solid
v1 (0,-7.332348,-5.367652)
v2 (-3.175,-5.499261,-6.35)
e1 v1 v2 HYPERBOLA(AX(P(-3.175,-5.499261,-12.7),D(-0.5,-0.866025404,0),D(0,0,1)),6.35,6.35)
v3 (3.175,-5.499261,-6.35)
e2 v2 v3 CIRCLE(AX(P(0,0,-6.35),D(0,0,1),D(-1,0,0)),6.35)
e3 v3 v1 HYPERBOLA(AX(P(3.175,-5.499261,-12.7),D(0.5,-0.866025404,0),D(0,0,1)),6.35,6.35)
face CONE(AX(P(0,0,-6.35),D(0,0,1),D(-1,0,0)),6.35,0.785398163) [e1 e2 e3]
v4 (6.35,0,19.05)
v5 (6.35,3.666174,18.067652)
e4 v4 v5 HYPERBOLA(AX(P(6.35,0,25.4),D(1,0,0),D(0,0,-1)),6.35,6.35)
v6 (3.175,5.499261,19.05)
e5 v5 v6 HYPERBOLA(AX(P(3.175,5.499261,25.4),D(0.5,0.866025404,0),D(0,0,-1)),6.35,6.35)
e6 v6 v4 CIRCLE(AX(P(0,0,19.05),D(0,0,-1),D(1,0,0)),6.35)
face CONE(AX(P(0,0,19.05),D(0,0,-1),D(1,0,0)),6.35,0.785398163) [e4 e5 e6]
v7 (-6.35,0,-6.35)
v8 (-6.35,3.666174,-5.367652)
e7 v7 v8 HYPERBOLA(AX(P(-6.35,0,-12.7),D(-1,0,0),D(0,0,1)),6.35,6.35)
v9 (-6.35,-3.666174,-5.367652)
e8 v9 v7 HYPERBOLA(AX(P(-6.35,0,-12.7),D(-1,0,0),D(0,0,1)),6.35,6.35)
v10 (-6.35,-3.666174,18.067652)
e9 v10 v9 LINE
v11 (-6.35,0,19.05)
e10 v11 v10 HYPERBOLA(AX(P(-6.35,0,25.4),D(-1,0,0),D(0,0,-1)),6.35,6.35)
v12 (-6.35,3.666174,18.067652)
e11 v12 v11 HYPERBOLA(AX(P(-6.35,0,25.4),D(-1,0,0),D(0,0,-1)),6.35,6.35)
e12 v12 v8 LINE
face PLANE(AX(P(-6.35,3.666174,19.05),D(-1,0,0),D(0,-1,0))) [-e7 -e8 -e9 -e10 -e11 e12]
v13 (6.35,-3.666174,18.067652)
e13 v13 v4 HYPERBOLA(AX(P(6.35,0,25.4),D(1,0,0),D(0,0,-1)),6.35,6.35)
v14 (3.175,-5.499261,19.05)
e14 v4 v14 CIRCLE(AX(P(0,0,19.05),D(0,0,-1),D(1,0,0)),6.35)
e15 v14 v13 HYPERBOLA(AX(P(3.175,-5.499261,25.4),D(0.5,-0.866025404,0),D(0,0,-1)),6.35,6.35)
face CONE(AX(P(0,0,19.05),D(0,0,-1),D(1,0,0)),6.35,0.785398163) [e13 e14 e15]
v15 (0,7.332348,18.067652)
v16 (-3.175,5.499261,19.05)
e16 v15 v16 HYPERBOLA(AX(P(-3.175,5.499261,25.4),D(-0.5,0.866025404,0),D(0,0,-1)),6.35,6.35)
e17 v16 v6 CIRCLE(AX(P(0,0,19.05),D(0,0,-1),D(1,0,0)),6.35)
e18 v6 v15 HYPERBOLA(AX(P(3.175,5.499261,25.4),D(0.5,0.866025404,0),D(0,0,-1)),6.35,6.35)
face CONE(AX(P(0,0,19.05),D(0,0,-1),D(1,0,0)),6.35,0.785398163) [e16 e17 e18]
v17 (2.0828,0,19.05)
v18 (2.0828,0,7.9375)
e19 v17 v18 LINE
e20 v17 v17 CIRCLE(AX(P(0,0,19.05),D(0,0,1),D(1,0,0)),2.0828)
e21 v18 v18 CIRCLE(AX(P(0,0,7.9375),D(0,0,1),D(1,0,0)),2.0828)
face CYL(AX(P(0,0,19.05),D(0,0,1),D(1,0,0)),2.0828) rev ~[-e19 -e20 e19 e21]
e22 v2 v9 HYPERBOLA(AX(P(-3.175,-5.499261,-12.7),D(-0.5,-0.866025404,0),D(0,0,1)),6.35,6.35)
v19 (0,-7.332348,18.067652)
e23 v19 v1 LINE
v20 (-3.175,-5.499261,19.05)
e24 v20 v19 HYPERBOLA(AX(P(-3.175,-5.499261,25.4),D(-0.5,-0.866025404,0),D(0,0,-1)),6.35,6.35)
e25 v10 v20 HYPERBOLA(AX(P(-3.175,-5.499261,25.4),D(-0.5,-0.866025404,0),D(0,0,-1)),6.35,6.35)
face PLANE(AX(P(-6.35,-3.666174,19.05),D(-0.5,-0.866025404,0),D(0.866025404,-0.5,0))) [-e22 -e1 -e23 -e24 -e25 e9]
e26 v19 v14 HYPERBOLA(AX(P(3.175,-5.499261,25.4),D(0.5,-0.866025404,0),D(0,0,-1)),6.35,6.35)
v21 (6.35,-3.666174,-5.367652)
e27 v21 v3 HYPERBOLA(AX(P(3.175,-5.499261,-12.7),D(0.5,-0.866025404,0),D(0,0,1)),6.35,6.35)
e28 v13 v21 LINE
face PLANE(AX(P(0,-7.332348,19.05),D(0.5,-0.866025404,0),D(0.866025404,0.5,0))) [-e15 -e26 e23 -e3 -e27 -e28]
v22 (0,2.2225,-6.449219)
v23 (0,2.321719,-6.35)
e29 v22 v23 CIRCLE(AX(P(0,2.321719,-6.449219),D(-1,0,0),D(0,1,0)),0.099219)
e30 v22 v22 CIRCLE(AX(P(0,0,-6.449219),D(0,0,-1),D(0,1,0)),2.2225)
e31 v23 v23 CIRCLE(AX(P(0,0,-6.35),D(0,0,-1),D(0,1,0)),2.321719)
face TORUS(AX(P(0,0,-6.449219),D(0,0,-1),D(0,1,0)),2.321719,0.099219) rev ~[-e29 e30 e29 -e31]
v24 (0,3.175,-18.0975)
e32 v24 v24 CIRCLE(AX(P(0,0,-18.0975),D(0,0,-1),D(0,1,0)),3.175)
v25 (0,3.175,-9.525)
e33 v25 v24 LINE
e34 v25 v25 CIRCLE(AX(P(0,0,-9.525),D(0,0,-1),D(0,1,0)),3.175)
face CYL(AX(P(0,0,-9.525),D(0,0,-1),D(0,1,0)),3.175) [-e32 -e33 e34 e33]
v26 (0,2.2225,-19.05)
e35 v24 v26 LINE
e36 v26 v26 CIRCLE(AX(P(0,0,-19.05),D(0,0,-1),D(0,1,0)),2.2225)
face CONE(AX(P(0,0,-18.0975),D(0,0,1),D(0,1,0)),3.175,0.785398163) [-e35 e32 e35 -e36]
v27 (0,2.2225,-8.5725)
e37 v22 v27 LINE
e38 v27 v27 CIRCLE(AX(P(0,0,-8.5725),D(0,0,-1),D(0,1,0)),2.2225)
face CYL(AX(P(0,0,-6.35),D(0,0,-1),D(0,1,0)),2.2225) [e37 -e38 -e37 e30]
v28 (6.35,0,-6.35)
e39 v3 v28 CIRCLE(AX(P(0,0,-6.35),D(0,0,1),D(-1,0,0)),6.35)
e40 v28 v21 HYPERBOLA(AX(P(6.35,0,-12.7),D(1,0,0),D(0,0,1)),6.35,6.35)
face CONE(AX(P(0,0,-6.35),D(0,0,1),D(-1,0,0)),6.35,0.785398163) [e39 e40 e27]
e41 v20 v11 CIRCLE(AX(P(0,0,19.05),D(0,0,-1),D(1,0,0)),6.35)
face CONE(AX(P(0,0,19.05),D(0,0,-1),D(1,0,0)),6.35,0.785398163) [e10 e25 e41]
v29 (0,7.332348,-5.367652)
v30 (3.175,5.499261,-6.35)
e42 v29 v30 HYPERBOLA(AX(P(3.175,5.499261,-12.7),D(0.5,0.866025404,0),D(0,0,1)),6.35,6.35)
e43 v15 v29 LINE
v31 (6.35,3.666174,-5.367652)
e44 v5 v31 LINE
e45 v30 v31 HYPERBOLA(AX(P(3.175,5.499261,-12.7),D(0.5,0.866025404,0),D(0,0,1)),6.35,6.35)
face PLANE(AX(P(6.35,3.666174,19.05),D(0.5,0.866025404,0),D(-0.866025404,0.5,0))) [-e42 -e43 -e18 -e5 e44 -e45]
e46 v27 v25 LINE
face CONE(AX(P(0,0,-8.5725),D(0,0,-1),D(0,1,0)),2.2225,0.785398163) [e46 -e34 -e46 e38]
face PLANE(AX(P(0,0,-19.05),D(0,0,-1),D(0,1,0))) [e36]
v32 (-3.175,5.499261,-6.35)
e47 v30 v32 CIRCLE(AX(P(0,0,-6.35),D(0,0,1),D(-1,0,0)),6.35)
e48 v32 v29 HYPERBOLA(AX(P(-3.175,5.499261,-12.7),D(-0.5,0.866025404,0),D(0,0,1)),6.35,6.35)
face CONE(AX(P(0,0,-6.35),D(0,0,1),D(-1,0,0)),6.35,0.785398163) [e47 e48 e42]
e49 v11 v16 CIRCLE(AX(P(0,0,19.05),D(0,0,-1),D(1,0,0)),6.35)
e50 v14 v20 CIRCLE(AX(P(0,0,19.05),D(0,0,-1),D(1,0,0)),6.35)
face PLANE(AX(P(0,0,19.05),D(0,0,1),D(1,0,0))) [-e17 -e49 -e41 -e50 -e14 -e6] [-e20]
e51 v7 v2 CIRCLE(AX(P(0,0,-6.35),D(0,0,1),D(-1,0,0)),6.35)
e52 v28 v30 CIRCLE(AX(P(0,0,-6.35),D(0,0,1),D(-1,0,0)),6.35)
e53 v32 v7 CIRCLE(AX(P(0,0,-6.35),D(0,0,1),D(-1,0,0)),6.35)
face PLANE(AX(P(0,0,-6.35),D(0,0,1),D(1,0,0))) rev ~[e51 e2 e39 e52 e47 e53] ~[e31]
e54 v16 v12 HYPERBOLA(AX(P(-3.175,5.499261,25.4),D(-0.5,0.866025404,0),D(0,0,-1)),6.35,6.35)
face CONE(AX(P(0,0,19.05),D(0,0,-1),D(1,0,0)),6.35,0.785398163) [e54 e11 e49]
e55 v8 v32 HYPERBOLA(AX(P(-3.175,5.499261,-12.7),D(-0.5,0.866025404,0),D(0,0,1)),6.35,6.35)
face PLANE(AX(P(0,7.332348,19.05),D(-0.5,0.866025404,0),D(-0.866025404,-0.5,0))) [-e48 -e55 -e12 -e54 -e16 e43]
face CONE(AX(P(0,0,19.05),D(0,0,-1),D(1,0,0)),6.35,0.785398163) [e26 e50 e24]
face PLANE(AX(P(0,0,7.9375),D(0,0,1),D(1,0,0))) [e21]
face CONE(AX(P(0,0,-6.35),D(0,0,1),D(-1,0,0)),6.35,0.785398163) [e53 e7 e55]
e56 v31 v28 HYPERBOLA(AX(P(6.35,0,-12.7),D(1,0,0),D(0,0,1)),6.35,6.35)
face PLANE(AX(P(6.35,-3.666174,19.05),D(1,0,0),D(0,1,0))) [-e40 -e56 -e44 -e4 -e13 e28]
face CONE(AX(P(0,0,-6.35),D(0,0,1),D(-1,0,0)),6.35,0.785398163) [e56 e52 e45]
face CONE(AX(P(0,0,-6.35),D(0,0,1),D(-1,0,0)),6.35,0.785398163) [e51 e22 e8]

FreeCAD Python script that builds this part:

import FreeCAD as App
import Part
import Sketcher
from FreeCAD import Vector
Q = App.Units.Quantity


def edges_at(feature, points):
    """Names of the edges that pass closest to the given points."""
    edges = feature.Shape.Edges
    near = lambda p: min(range(len(edges)), key=lambda i: edges[i].distToShape(Part.Vertex(*p))[0])
    return sorted({f"Edge{near(p) + 1}" for p in points})

doc = App.newDocument("Part")
body = doc.addObject("PartDesign::Body", "Body")

# Sketch on XY plane
sketch1 = body.newObject("Sketcher::SketchObject", "Sketch")
sketch1.AttachmentSupport = (doc.getObject("XY_Plane"), [""])
sketch1.MapMode = "FlatFace"
sketch1.AttachmentOffset = App.Placement(Vector(0, 0, 0.75 * 25.4), App.Rotation())
sketch1.addGeometry(Part.LineSegment(Vector(6, 4, 0), Vector(0, 7, 0)), False)
sketch1.addGeometry(Part.LineSegment(Vector(0, 7, 0), Vector(-6, 4, 0)), False)
sketch1.addGeometry(Part.LineSegment(Vector(-6, 4, 0), Vector(-6, -4, 0)), False)
sketch1.addGeometry(Part.LineSegment(Vector(-6, -4, 0), Vector(0, -7, 0)), False)
sketch1.addGeometry(Part.LineSegment(Vector(0, -7, 0), Vector(6, -4, 0)), False)
sketch1.addGeometry(Part.LineSegment(Vector(6, -4, 0), Vector(6, 4, 0)), False)
sketch1.addConstraint(Sketcher.Constraint("Coincident", 0, 2, 1, 1))
sketch1.addConstraint(Sketcher.Constraint("Coincident", 1, 2, 2, 1))
sketch1.addConstraint(Sketcher.Constraint("Coincident", 2, 2, 3, 1))
sketch1.addConstraint(Sketcher.Constraint("Coincident", 3, 2, 4, 1))
sketch1.addConstraint(Sketcher.Constraint("Coincident", 4, 2, 5, 1))
sketch1.addConstraint(Sketcher.Constraint("Coincident", 5, 2, 0, 1))
sketch1.addConstraint(Sketcher.Constraint("Vertical", 2))
sketch1.addConstraint(Sketcher.Constraint("Vertical", 5))
sketch1.addConstraint(Sketcher.Constraint("Symmetric", 0, 2, 3, 2, -1, 1))
sketch1.addConstraint(Sketcher.Constraint("Symmetric", 1, 2, 4, 2, -1, 1))
sketch1.addConstraint(Sketcher.Constraint("PointOnObject", 0, 2, -2))
sketch1.addConstraint(Sketcher.Constraint("Parallel", 0, 3))
sketch1.addConstraint(Sketcher.Constraint("Horizontal", 2, 2, 4, 2))
sketch1.addConstraint(Sketcher.Constraint("Angle", 0, Q("150 deg")))
sketch1.addConstraint(Sketcher.Constraint("DistanceX", 2, 2, 4, 2, Q("0.5 in")))
sketch1.addConstraint(Sketcher.Constraint("DistanceY", 2, 2, 2, 1, 7.332348))
pad1 = body.newObject("PartDesign::Pad", "Pad")
pad1.Profile = sketch1
pad1.Length = Q("1 in")
pad1.Reversed = True

# Sketch on YZ plane
sketch2 = body.newObject("Sketcher::SketchObject", "Sketch001")
sketch2.AttachmentSupport = (doc.getObject("YZ_Plane"), [""])
sketch2.MapMode = "FlatFace"
sketch2.addGeometry(Part.LineSegment(Vector(2.2, -8.6, 0), Vector(2.2, -6.3, 0)), False)
sketch2.addGeometry(Part.LineSegment(Vector(2.2, -6.3, 0), Vector(0, -6.3, 0)), False)
sketch2.addGeometry(Part.LineSegment(Vector(0, -6.3, 0), Vector(0, -19.1, 0)), False)
sketch2.addGeometry(Part.LineSegment(Vector(0, -19.1, 0), Vector(3.2, -19.1, 0)), False)
sketch2.addGeometry(Part.LineSegment(Vector(3.2, -19.1, 0), Vector(3.2, -9.5, 0)), False)
sketch2.addGeometry(Part.LineSegment(Vector(3.2, -9.5, 0), Vector(2.2, -8.6, 0)), False)
sketch2.addConstraint(Sketcher.Constraint("Coincident", 0, 2, 1, 1))
sketch2.addConstraint(Sketcher.Constraint("Coincident", 1, 2, 2, 1))
sketch2.addConstraint(Sketcher.Constraint("Coincident", 2, 2, 3, 1))
sketch2.addConstraint(Sketcher.Constraint("Coincident", 3, 2, 4, 1))
sketch2.addConstraint(Sketcher.Constraint("Coincident", 4, 2, 5, 1))
sketch2.addConstraint(Sketcher.Constraint("Coincident", 5, 2, 0, 1))
sketch2.addConstraint(Sketcher.Constraint("Vertical", 0))
sketch2.addConstraint(Sketcher.Constraint("Horizontal", 1))
sketch2.addConstraint(Sketcher.Constraint("Vertical", 2))
sketch2.addConstraint(Sketcher.Constraint("Horizontal", 3))
sketch2.addConstraint(Sketcher.Constraint("Vertical", 4))
sketch2.addConstraint(Sketcher.Constraint("PointOnObject", 1, 2, -2))
sketch2.addConstraint(Sketcher.Constraint("Equal", 1, 0))
sketch2.addConstraint(Sketcher.Constraint("DistanceY", 2, 2, 2, 1, Q("0.5 in")))
sketch2.addConstraint(Sketcher.Constraint("Angle", 5, Q("135 deg")))
sketch2.addConstraint(Sketcher.Constraint("DistanceX", 3, 1, 3, 2, Q("0.125 in")))
sketch2.addConstraint(Sketcher.Constraint("DistanceY", 0, 2, -1, 1, Q("0.25 in")))
sketch2.addConstraint(Sketcher.Constraint("DistanceX", 1, 2, 1, 1, Q("0.0875 in")))
revolution = body.newObject("PartDesign::Revolution", "Revolution")
revolution.Profile = sketch2
revolution.ReferenceAxis = (sketch2, ["V_Axis"])
revolution.Angle = 360
doc.recompute()

chamfer = body.newObject("PartDesign::Chamfer", "Chamfer")
chamfer.Base = (revolution, edges_at(revolution, [(0, -3.175, -19.05)]))
chamfer.Size = Q("0.0375 in")

# Sketch on XY plane
sketch3 = body.newObject("Sketcher::SketchObject", "Sketch002")
sketch3.AttachmentSupport = (doc.getObject("XY_Plane"), [""])
sketch3.MapMode = "FlatFace"
sketch3.AttachmentOffset = App.Placement(Vector(0, 0, 0.75 * 25.4), App.Rotation())
sketch3.addGeometry(Part.Circle(Vector(0, 0, 0), Vector(0, 0, 1), 2.1), False)
sketch3.addConstraint(Sketcher.Constraint("Coincident", 0, 3, -1, 1))
sketch3.addConstraint(Sketcher.Constraint("Diameter", 0, Q("0.164 in")))
pocket1 = body.newObject("PartDesign::Pocket", "Pocket")
pocket1.Profile = sketch3
pocket1.Length = Q("0.4375 in")
doc.recompute()

fillet = body.newObject("PartDesign::Fillet", "Fillet")
fillet.Base = (pocket1, edges_at(pocket1, [(0, -2.223, -6.35)]))
fillet.Radius = 0.099219

# Sketch on XY plane
sketch4 = body.newObject("Sketcher::SketchObject", "Sketch003")
sketch4.AttachmentSupport = (doc.getObject("XY_Plane"), [""])
sketch4.MapMode = "FlatFace"
sketch4.AttachmentOffset = App.Placement(Vector(0, 0, 0.75 * 25.4), App.Rotation())
sketch4.addGeometry(Part.LineSegment(Vector(-51, 52, 0), Vector(-51, -52, 0)), False)
sketch4.addGeometry(Part.LineSegment(Vector(-51, -52, 0), Vector(51, -52, 0)), False)
sketch4.addGeometry(Part.LineSegment(Vector(51, -52, 0), Vector(51, 52, 0)), False)
sketch4.addGeometry(Part.LineSegment(Vector(51, 52, 0), Vector(-51, 52, 0)), False)
sketch4.addGeometry(Part.Circle(Vector(0, 0, 0), Vector(0, 0, 1), 6), False)
sketch4.addConstraint(Sketcher.Constraint("Coincident", 0, 2, 1, 1))
sketch4.addConstraint(Sketcher.Constraint("Coincident", 1, 2, 2, 1))
sketch4.addConstraint(Sketcher.Constraint("Coincident", 2, 2, 3, 1))
sketch4.addConstraint(Sketcher.Constraint("Coincident", 3, 2, 0, 1))
sketch4.addConstraint(Sketcher.Constraint("Vertical", 0))
sketch4.addConstraint(Sketcher.Constraint("Horizontal", 1))
sketch4.addConstraint(Sketcher.Constraint("Vertical", 2))
sketch4.addConstraint(Sketcher.Constraint("Horizontal", 3))
sketch4.addConstraint(Sketcher.Constraint("Coincident", 4, 3, -1, 1))
sketch4.addConstraint(Sketcher.Constraint("Symmetric", 0, 2, 2, 2, -1, 1))
sketch4.addConstraint(Sketcher.Constraint("Diameter", 4, Q("0.5 in")))
sketch4.addConstraint(Sketcher.Constraint("DistanceX", 1, 1, 1, 2, 101.45))
sketch4.addConstraint(Sketcher.Constraint("DistanceY", 0, 2, 0, 1, 103.414))
pocket2 = body.newObject("PartDesign::Pocket", "Pocket001")
pocket2.Profile = sketch4
pocket2.Length = 39.1
pocket2.TaperAngle = 45

# Sketch on XY plane
sketch5 = body.newObject("Sketcher::SketchObject", "Sketch004")
sketch5.AttachmentSupport = (doc.getObject("XY_Plane"), [""])
sketch5.MapMode = "FlatFace"
sketch5.AttachmentOffset = App.Placement(Vector(0, 0, -0.25 * 25.4), App.Rotation())
sketch5.addGeometry(Part.LineSegment(Vector(38, 39, 0), Vector(38, -39, 0)), False)
sketch5.addGeometry(Part.LineSegment(Vector(38, -39, 0), Vector(-38, -39, 0)), False)
sketch5.addGeometry(Part.LineSegment(Vector(-38, -39, 0), Vector(-38, 39, 0)), False)
sketch5.addGeometry(Part.LineSegment(Vector(-38, 39, 0), Vector(38, 39, 0)), False)
sketch5.addGeometry(Part.Circle(Vector(0, 0, 0), Vector(0, 0, 1), 6), False)
sketch5.addConstraint(Sketcher.Constraint("Coincident", 0, 2, 1, 1))
sketch5.addConstraint(Sketcher.Constraint("Coincident", 1, 2, 2, 1))
sketch5.addConstraint(Sketcher.Constraint("Coincident", 2, 2, 3, 1))
sketch5.addConstraint(Sketcher.Constraint("Coincident", 3, 2, 0, 1))
sketch5.addConstraint(Sketcher.Constraint("Vertical", 0))
sketch5.addConstraint(Sketcher.Constraint("Horizontal", 1))
sketch5.addConstraint(Sketcher.Constraint("Vertical", 2))
sketch5.addConstraint(Sketcher.Constraint("Horizontal", 3))
sketch5.addConstraint(Sketcher.Constraint("Coincident", 4, 3, -1, 1))
sketch5.addConstraint(Sketcher.Constraint("Symmetric", 0, 2, 2, 2, -1, 1))
sketch5.addConstraint(Sketcher.Constraint("Diameter", 4, Q("0.5 in")))
sketch5.addConstraint(Sketcher.Constraint("DistanceX", 1, 2, 1, 1, 76.05))
sketch5.addConstraint(Sketcher.Constraint("DistanceY", 0, 2, 0, 1, 78.014))
pocket3 = body.newObject("PartDesign::Pocket", "Pocket002")
pocket3.Profile = sketch5
pocket3.Length = 26.4
pocket3.Reversed = True
pocket3.TaperAngle = 45

doc.recompute()
